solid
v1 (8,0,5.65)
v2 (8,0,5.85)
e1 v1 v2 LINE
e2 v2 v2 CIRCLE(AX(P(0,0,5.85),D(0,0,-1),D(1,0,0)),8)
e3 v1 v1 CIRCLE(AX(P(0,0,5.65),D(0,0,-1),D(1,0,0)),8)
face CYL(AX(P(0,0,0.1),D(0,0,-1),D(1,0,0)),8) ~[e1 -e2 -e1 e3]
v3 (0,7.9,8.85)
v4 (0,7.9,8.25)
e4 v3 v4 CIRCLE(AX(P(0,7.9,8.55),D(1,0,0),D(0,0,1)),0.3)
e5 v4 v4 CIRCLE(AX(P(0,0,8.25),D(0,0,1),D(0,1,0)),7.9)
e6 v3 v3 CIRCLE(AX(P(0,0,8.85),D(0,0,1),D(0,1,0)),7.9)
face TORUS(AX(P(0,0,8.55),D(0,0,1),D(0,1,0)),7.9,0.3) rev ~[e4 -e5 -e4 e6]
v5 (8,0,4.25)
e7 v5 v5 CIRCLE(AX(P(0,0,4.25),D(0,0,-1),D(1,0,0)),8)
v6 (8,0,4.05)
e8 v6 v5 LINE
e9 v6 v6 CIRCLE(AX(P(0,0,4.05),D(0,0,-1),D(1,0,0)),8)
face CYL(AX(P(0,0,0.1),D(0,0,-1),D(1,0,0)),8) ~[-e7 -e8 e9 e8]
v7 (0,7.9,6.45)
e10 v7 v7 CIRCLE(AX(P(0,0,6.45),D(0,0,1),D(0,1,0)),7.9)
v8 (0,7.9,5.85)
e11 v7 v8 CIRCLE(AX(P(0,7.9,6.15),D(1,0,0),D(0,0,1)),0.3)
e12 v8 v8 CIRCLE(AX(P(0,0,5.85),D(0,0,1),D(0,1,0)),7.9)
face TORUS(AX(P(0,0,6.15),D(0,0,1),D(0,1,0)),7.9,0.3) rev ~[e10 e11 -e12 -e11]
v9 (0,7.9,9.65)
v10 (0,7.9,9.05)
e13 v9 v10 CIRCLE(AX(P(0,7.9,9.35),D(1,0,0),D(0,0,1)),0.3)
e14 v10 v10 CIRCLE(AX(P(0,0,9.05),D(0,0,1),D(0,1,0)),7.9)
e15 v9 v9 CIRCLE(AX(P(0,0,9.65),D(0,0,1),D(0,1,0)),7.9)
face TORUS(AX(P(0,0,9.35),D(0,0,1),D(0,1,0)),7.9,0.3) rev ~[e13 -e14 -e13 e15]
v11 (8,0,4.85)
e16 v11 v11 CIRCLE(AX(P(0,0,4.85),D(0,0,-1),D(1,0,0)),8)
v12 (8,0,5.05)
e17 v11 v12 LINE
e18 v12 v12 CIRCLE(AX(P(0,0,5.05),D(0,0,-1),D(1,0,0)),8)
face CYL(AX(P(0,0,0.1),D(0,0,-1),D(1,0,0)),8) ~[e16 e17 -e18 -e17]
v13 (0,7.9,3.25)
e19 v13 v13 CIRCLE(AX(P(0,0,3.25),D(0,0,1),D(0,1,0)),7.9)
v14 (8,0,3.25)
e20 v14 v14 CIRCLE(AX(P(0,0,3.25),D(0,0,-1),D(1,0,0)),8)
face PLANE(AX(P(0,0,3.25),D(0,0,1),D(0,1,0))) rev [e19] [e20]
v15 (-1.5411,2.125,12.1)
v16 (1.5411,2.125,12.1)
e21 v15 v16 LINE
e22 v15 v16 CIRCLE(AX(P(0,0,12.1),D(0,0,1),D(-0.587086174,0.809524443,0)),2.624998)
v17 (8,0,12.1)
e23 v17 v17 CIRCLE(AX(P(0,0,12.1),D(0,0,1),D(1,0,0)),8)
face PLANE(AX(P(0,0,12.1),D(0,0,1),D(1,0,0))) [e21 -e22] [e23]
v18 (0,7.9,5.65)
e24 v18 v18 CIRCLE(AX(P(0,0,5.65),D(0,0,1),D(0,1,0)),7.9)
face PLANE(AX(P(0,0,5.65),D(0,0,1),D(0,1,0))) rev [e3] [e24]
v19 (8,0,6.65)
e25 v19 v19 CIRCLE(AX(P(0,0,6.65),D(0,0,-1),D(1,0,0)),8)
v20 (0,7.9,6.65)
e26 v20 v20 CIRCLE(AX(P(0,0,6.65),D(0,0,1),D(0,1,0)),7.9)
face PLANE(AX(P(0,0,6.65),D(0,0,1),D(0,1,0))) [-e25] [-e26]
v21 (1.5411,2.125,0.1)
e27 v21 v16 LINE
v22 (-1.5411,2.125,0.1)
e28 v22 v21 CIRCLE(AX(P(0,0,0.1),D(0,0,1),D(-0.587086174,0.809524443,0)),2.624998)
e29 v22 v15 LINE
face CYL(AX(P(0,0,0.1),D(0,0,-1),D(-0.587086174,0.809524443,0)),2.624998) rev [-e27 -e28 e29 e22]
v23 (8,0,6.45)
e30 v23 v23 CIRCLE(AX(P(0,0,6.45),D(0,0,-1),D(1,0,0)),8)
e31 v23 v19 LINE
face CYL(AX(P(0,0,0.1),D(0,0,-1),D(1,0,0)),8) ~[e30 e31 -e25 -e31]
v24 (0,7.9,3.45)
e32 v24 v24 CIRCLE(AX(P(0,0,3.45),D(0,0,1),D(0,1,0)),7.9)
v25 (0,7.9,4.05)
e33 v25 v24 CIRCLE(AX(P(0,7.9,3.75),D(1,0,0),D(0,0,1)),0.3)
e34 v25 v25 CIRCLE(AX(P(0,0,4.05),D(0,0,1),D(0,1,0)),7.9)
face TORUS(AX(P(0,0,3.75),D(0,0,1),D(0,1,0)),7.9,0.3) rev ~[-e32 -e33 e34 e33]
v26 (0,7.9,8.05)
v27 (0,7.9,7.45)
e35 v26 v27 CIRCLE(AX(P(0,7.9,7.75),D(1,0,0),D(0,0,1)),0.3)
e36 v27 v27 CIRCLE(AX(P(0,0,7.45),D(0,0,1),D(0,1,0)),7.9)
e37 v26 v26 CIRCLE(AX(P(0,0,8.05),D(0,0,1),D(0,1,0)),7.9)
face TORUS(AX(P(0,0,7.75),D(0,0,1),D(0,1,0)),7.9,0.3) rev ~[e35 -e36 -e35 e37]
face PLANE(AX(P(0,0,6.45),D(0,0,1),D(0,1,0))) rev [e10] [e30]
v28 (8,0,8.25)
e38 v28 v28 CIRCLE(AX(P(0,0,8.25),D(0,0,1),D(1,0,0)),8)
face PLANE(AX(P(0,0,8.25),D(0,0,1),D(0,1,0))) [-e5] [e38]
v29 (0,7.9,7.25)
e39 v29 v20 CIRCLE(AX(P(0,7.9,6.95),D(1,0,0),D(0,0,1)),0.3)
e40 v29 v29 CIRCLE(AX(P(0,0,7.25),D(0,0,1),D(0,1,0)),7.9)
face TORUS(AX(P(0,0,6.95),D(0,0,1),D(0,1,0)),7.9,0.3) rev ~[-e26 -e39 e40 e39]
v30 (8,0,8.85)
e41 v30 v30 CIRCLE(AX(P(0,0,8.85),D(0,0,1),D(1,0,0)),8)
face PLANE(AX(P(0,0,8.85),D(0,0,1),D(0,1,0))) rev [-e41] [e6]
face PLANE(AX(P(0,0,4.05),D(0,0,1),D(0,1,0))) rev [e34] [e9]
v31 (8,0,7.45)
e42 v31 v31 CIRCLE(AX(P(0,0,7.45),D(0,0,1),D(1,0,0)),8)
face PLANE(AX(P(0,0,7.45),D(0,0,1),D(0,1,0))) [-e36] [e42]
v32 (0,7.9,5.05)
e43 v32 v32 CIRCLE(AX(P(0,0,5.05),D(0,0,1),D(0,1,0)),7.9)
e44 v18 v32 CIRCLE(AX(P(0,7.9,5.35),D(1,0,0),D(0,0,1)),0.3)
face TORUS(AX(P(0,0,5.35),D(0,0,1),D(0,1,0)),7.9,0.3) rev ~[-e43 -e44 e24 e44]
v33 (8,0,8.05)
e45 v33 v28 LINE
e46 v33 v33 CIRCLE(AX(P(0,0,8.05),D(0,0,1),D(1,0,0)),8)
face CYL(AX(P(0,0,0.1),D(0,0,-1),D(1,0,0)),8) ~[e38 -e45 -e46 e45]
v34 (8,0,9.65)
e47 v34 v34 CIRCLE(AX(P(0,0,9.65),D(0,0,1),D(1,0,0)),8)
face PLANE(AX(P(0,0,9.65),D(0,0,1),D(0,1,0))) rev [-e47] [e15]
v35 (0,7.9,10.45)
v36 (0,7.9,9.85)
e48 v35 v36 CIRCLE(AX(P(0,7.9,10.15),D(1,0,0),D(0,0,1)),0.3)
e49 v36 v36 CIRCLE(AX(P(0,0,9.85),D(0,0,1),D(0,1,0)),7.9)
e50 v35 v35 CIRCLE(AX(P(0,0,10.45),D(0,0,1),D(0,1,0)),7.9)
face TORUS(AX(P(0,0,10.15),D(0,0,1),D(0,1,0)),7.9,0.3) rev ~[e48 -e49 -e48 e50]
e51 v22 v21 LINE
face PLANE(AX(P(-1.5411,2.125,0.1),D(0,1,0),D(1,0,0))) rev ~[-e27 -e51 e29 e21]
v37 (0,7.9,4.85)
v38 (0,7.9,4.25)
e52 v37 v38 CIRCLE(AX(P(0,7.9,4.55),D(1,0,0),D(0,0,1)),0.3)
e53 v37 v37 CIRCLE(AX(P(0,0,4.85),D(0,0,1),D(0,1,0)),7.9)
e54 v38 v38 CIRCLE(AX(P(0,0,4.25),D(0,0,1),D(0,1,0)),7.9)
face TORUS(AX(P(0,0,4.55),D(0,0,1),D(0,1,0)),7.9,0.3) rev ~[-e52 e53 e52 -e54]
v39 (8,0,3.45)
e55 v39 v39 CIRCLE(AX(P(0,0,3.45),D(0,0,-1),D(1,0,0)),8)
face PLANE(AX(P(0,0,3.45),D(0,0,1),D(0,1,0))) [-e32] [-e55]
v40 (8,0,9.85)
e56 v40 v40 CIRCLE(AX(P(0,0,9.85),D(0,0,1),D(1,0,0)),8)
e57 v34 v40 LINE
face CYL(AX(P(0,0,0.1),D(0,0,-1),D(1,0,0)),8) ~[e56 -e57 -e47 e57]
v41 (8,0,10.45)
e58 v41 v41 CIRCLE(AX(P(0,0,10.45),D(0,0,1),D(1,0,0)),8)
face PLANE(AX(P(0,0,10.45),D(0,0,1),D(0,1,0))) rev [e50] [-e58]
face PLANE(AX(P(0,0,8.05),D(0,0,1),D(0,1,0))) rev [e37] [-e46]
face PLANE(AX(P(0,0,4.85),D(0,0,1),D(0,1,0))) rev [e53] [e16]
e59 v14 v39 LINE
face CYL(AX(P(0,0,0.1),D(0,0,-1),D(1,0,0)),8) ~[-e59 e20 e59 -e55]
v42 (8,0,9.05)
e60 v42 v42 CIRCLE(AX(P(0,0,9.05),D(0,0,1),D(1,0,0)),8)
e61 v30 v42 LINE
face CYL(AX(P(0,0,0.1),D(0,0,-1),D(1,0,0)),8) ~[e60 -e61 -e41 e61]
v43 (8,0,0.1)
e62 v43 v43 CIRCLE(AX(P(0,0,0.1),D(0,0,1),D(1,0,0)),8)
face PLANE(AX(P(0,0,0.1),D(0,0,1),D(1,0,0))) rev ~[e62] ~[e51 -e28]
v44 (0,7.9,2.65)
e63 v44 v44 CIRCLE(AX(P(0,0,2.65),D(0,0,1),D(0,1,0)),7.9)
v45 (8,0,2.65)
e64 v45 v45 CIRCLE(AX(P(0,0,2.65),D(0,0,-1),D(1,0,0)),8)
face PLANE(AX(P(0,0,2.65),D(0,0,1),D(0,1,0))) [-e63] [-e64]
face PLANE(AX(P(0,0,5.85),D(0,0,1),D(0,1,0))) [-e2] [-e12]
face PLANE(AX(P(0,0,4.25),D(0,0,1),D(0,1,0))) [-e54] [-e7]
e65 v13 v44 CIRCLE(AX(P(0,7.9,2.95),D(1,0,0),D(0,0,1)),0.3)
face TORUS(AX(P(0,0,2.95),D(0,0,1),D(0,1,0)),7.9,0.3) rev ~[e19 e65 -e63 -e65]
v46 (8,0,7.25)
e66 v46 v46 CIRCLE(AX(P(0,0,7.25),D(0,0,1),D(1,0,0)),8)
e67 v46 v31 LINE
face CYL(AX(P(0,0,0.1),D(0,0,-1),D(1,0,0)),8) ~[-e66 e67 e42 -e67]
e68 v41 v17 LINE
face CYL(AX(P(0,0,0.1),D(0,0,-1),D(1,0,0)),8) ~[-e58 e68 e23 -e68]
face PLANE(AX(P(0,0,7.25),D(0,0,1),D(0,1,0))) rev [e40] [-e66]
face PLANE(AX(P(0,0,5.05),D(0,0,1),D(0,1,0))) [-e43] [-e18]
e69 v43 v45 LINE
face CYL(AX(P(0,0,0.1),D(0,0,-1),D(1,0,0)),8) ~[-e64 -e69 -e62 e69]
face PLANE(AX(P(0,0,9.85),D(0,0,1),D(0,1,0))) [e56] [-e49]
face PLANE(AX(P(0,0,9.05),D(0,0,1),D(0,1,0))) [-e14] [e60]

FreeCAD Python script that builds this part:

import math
import FreeCAD as App
import Part
import Sketcher
from FreeCAD import Vector

doc = App.newDocument("Part")
body = doc.addObject("PartDesign::Body", "Body")

sketch1 = body.newObject("Sketcher::SketchObject", "Sketch")
sketch1.AttachmentSupport = (doc.getObject("XY_Plane"), [""])
sketch1.MapMode = "FlatFace"
sketch1.AttachmentOffset = App.Placement(Vector(0, 0, 0.1), App.Rotation())
sketch1.addGeometry(Part.Circle(Vector(0, 0, 0), Vector(0, 0, 1), 8), False)
sketch1.addGeometry(Part.ArcOfCircle(Part.Circle(Vector(0, 0, 0), Vector(0, 0, 1), 2.624998), math.radians(125.950506), math.radians(414.049494)), False)
sketch1.addGeometry(Part.LineSegment(Vector(-1.5411, 2.125, 0), Vector(1.5411, 2.125, 0)), False)
sketch1.addConstraint(Sketcher.Constraint("Coincident", 1, 1, 2, 1))
sketch1.addConstraint(Sketcher.Constraint("Coincident", 2, 2, 1, 2))
sketch1.addConstraint(Sketcher.Constraint("Horizontal", 2))
sketch1.addConstraint(Sketcher.Constraint("Coincident", 0, 3, -1, 1))
sketch1.addConstraint(Sketcher.Constraint("Coincident", 1, 3, -1, 1))
sketch1.addConstraint(Sketcher.Constraint("Diameter", 0, 16.0))
sketch1.addConstraint(Sketcher.Constraint("Radius", 1, 2.625))
sketch1.addConstraint(Sketcher.Constraint("DistanceX", 2, 1, 2, 2, 3.0822))
pad1 = body.newObject("PartDesign::Pad", "Pad")
pad1.Profile = sketch1
pad1.Length = 12

sketch2 = body.newObject("Sketcher::SketchObject", "Sketch001")
sketch2.AttachmentSupport = (doc.getObject("YZ_Plane"), [""])
sketch2.MapMode = "FlatFace"
sketch2.addGeometry(Part.LineSegment(Vector(7.9, 2.65, 0), Vector(8, 2.65, 0)), False)
sketch2.addGeometry(Part.LineSegment(Vector(8, 2.65, 0), Vector(8, 3.25, 0)), False)
sketch2.addGeometry(Part.LineSegment(Vector(8, 3.25, 0), Vector(7.9, 3.25, 0)), False)
sketch2.addGeometry(Part.ArcOfCircle(Part.Circle(Vector(7.9, 2.95, 0), Vector(0, 0, 1), 0.3), math.radians(90), math.radians(270)), False)
sketch2.addGeometry(Part.LineSegment(Vector(7.9, 9.85, 0), Vector(8, 9.85, 0)), False)
sketch2.addGeometry(Part.LineSegment(Vector(8, 9.85, 0), Vector(8, 10.45, 0)), False)
sketch2.addGeometry(Part.LineSegment(Vector(8, 10.45, 0), Vector(7.9, 10.45, 0)), False)
sketch2.addGeometry(Part.ArcOfCircle(Part.Circle(Vector(7.9, 10.15, 0), Vector(0, 0, 1), 0.3), math.radians(90), math.radians(270)), False)
sketch2.addGeometry(Part.LineSegment(Vector(7.9, 9.05, 0), Vector(8, 9.05, 0)), False)
sketch2.addGeometry(Part.LineSegment(Vector(8, 9.05, 0), Vector(8, 9.65, 0)), False)
sketch2.addGeometry(Part.LineSegment(Vector(8, 9.65, 0), Vector(7.9, 9.65, 0)), False)
sketch2.addGeometry(Part.ArcOfCircle(Part.Circle(Vector(7.9, 9.35, 0), Vector(0, 0, 1), 0.3), math.radians(90), math.radians(270)), False)
sketch2.addGeometry(Part.LineSegment(Vector(7.9, 8.25, 0), Vector(8, 8.25, 0)), False)
sketch2.addGeometry(Part.LineSegment(Vector(8, 8.25, 0), Vector(8, 8.85, 0)), False)
sketch2.addGeometry(Part.LineSegment(Vector(8, 8.85, 0), Vector(7.9, 8.85, 0)), False)
sketch2.addGeometry(Part.ArcOfCircle(Part.Circle(Vector(7.9, 8.55, 0), Vector(0, 0, 1), 0.3), math.radians(90), math.radians(270)), False)
sketch2.addGeometry(Part.LineSegment(Vector(7.9, 7.45, 0), Vector(8, 7.45, 0)), False)
sketch2.addGeometry(Part.LineSegment(Vector(8, 7.45, 0), Vector(8, 8.05, 0)), False)
sketch2.addGeometry(Part.LineSegment(Vector(8, 8.05, 0), Vector(7.9, 8.05, 0)), False)
sketch2.addGeometry(Part.ArcOfCircle(Part.Circle(Vector(7.9, 7.75, 0), Vector(0, 0, 1), 0.3), math.radians(90), math.radians(270)), False)
sketch2.addGeometry(Part.LineSegment(Vector(7.9, 6.65, 0), Vector(8, 6.65, 0)), False)
sketch2.addGeometry(Part.LineSegment(Vector(8, 6.65, 0), Vector(8, 7.25, 0)), False)
sketch2.addGeometry(Part.LineSegment(Vector(8, 7.25, 0), Vector(7.9, 7.25, 0)), False)
sketch2.addGeometry(Part.ArcOfCircle(Part.Circle(Vector(7.9, 6.95, 0), Vector(0, 0, 1), 0.3), math.radians(90), math.radians(270)), False)
sketch2.addGeometry(Part.LineSegment(Vector(7.9, 5.85, 0), Vector(8, 5.85, 0)), False)
sketch2.addGeometry(Part.LineSegment(Vector(8, 5.85, 0), Vector(8, 6.45, 0)), False)
sketch2.addGeometry(Part.LineSegment(Vector(8, 6.45, 0), Vector(7.9, 6.45, 0)), False)
sketch2.addGeometry(Part.ArcOfCircle(Part.Circle(Vector(7.9, 6.15, 0), Vector(0, 0, 1), 0.3), math.radians(90), math.radians(270)), False)
sketch2.addGeometry(Part.LineSegment(Vector(7.9, 5.05, 0), Vector(8, 5.05, 0)), False)
sketch2.addGeometry(Part.LineSegment(Vector(8, 5.05, 0), Vector(8, 5.65, 0)), False)
sketch2.addGeometry(Part.LineSegment(Vector(8, 5.65, 0), Vector(7.9, 5.65, 0)), False)
sketch2.addGeometry(Part.ArcOfCircle(Part.Circle(Vector(7.9, 5.35, 0), Vector(0, 0, 1), 0.3), math.radians(90), math.radians(270)), False)
sketch2.addGeometry(Part.LineSegment(Vector(7.9, 4.25, 0), Vector(8, 4.25, 0)), False)
sketch2.addGeometry(Part.LineSegment(Vector(8, 4.25, 0), Vector(8, 4.85, 0)), False)
sketch2.addGeometry(Part.LineSegment(Vector(8, 4.85, 0), Vector(7.9, 4.85, 0)), False)
sketch2.addGeometry(Part.ArcOfCircle(Part.Circle(Vector(7.9, 4.55, 0), Vector(0, 0, 1), 0.3), math.radians(90), math.radians(270)), False)
sketch2.addGeometry(Part.LineSegment(Vector(7.9, 3.45, 0), Vector(8, 3.45, 0)), False)
sketch2.addGeometry(Part.LineSegment(Vector(8, 3.45, 0), Vector(8, 4.05, 0)), False)
sketch2.addGeometry(Part.LineSegment(Vector(8, 4.05, 0), Vector(7.9, 4.05, 0)), False)
sketch2.addGeometry(Part.ArcOfCircle(Part.Circle(Vector(7.9, 3.75, 0), Vector(0, 0, 1), 0.3), math.radians(90), math.radians(270)), False)
sketch2.addConstraint(Sketcher.Constraint("Coincident", 0, 2, 1, 1))
sketch2.addConstraint(Sketcher.Constraint("Coincident", 1, 2, 2, 1))
sketch2.addConstraint(Sketcher.Constraint("Tangent", 2, 2, 3, 1))
sketch2.addConstraint(Sketcher.Constraint("Tangent", 3, 2, 0, 1))
sketch2.addConstraint(Sketcher.Constraint("Coincident", 4, 2, 5, 1))
sketch2.addConstraint(Sketcher.Constraint("Coincident", 5, 2, 6, 1))
sketch2.addConstraint(Sketcher.Constraint("Tangent", 6, 2, 7, 1))
sketch2.addConstraint(Sketcher.Constraint("Tangent", 7, 2, 4, 1))
sketch2.addConstraint(Sketcher.Constraint("Coincident", 8, 2, 9, 1))
sketch2.addConstraint(Sketcher.Constraint("Coincident", 9, 2, 10, 1))
sketch2.addConstraint(Sketcher.Constraint("Tangent", 10, 2, 11, 1))
sketch2.addConstraint(Sketcher.Constraint("Tangent", 11, 2, 8, 1))
sketch2.addConstraint(Sketcher.Constraint("Coincident", 12, 2, 13, 1))
sketch2.addConstraint(Sketcher.Constraint("Coincident", 13, 2, 14, 1))
sketch2.addConstraint(Sketcher.Constraint("Tangent", 14, 2, 15, 1))
sketch2.addConstraint(Sketcher.Constraint("Tangent", 15, 2, 12, 1))
sketch2.addConstraint(Sketcher.Constraint("Coincident", 16, 2, 17, 1))
sketch2.addConstraint(Sketcher.Constraint("Coincident", 17, 2, 18, 1))
sketch2.addConstraint(Sketcher.Constraint("Tangent", 18, 2, 19, 1))
sketch2.addConstraint(Sketcher.Constraint("Tangent", 19, 2, 16, 1))
sketch2.addConstraint(Sketcher.Constraint("Coincident", 20, 2, 21, 1))
sketch2.addConstraint(Sketcher.Constraint("Coincident", 21, 2, 22, 1))
sketch2.addConstraint(Sketcher.Constraint("Tangent", 22, 2, 23, 1))
sketch2.addConstraint(Sketcher.Constraint("Tangent", 23, 2, 20, 1))
sketch2.addConstraint(Sketcher.Constraint("Coincident", 24, 2, 25, 1))
sketch2.addConstraint(Sketcher.Constraint("Coincident", 25, 2, 26, 1))
sketch2.addConstraint(Sketcher.Constraint("Tangent", 26, 2, 27, 1))
sketch2.addConstraint(Sketcher.Constraint("Tangent", 27, 2, 24, 1))
sketch2.addConstraint(Sketcher.Constraint("Coincident", 28, 2, 29, 1))
sketch2.addConstraint(Sketcher.Constraint("Coincident", 29, 2, 30, 1))
sketch2.addConstraint(Sketcher.Constraint("Tangent", 30, 2, 31, 1))
sketch2.addConstraint(Sketcher.Constraint("Tangent", 31, 2, 28, 1))
sketch2.addConstraint(Sketcher.Constraint("Coincident", 32, 2, 33, 1))
sketch2.addConstraint(Sketcher.Constraint("Coincident", 33, 2, 34, 1))
sketch2.addConstraint(Sketcher.Constraint("Tangent", 34, 2, 35, 1))
sketch2.addConstraint(Sketcher.Constraint("Tangent", 35, 2, 32, 1))
sketch2.addConstraint(Sketcher.Constraint("Coincident", 36, 2, 37, 1))
sketch2.addConstraint(Sketcher.Constraint("Coincident", 37, 2, 38, 1))
sketch2.addConstraint(Sketcher.Constraint("Tangent", 38, 2, 39, 1))
sketch2.addConstraint(Sketcher.Constraint("Tangent", 39, 2, 36, 1))
sketch2.addConstraint(Sketcher.Constraint("Horizontal", 0))
sketch2.addConstraint(Sketcher.Constraint("Vertical", 1))
sketch2.addConstraint(Sketcher.Constraint("Horizontal", 2))
sketch2.addConstraint(Sketcher.Constraint("Horizontal", 4))
sketch2.addConstraint(Sketcher.Constraint("Vertical", 5))
sketch2.addConstraint(Sketcher.Constraint("Horizontal", 6))
sketch2.addConstraint(Sketcher.Constraint("Horizontal", 8))
sketch2.addConstraint(Sketcher.Constraint("Vertical", 9))
sketch2.addConstraint(Sketcher.Constraint("Horizontal", 10))
sketch2.addConstraint(Sketcher.Constraint("Horizontal", 12))
sketch2.addConstraint(Sketcher.Constraint("Vertical", 13))
sketch2.addConstraint(Sketcher.Constraint("Horizontal", 14))
sketch2.addConstraint(Sketcher.Constraint("Horizontal", 16))
sketch2.addConstraint(Sketcher.Constraint("Vertical", 17))
sketch2.addConstraint(Sketcher.Constraint("Horizontal", 18))
sketch2.addConstraint(Sketcher.Constraint("Horizontal", 20))
sketch2.addConstraint(Sketcher.Constraint("Vertical", 21))
sketch2.addConstraint(Sketcher.Constraint("Horizontal", 22))
sketch2.addConstraint(Sketcher.Constraint("Horizontal", 24))
sketch2.addConstraint(Sketcher.Constraint("Vertical", 25))
sketch2.addConstraint(Sketcher.Constraint("Horizontal", 26))
sketch2.addConstraint(Sketcher.Constraint("Horizontal", 28))
sketch2.addConstraint(Sketcher.Constraint("Vertical", 29))
sketch2.addConstraint(Sketcher.Constraint("Horizontal", 30))
sketch2.addConstraint(Sketcher.Constraint("Horizontal", 32))
sketch2.addConstraint(Sketcher.Constraint("Vertical", 33))
sketch2.addConstraint(Sketcher.Constraint("Horizontal", 34))
sketch2.addConstraint(Sketcher.Constraint("Horizontal", 36))
sketch2.addConstraint(Sketcher.Constraint("Vertical", 37))
sketch2.addConstraint(Sketcher.Constraint("Horizontal", 38))
sketch2.addConstraint(Sketcher.Constraint("Equal", 3, 7))
sketch2.addConstraint(Sketcher.Constraint("Equal", 7, 11))
sketch2.addConstraint(Sketcher.Constraint("Equal", 11, 15))
sketch2.addConstraint(Sketcher.Constraint("Equal", 15, 19))
sketch2.addConstraint(Sketcher.Constraint("Equal", 19, 23))
sketch2.addConstraint(Sketcher.Constraint("Equal", 23, 27))
sketch2.addConstraint(Sketcher.Constraint("Equal", 27, 31))
sketch2.addConstraint(Sketcher.Constraint("Equal", 31, 35))
sketch2.addConstraint(Sketcher.Constraint("Equal", 35, 39))
sketch2.addConstraint(Sketcher.Constraint("Vertical", 3, 3, 7, 3))
sketch2.addConstraint(Sketcher.Constraint("Vertical", 7, 3, 11, 3))
sketch2.addConstraint(Sketcher.Constraint("Vertical", 11, 3, 15, 3))
sketch2.addConstraint(Sketcher.Constraint("Vertical", 15, 3, 19, 3))
sketch2.addConstraint(Sketcher.Constraint("Vertical", 19, 3, 23, 3))
sketch2.addConstraint(Sketcher.Constraint("Vertical", 23, 3, 27, 3))
sketch2.addConstraint(Sketcher.Constraint("Vertical", 27, 3, 31, 3))
sketch2.addConstraint(Sketcher.Constraint("Vertical", 31, 3, 35, 3))
sketch2.addConstraint(Sketcher.Constraint("Vertical", 35, 3, 39, 3))
sketch2.addConstraint(Sketcher.Constraint("Vertical", 1, 2, 4, 2))
sketch2.addConstraint(Sketcher.Constraint("Vertical", 5, 2, 8, 2))
sketch2.addConstraint(Sketcher.Constraint("Vertical", 9, 2, 12, 2))
sketch2.addConstraint(Sketcher.Constraint("Vertical", 13, 2, 16, 2))
sketch2.addConstraint(Sketcher.Constraint("Vertical", 17, 2, 20, 2))
sketch2.addConstraint(Sketcher.Constraint("Vertical", 21, 2, 24, 2))
sketch2.addConstraint(Sketcher.Constraint("Vertical", 25, 2, 28, 2))
sketch2.addConstraint(Sketcher.Constraint("Vertical", 29, 2, 32, 2))
sketch2.addConstraint(Sketcher.Constraint("Vertical", 33, 2, 36, 2))
sketch2.addConstraint(Sketcher.Constraint("Radius", 3, 0.3))
sketch2.addConstraint(Sketcher.Constraint("DistanceX", 0, 1, 0, 2, 0.1))
sketch2.addConstraint(Sketcher.Constraint("DistanceY", 11, 3, 7, 3, 0.8))
sketch2.addConstraint(Sketcher.Constraint("DistanceY", 15, 3, 11, 3, 0.8))
sketch2.addConstraint(Sketcher.Constraint("DistanceY", 19, 3, 15, 3, 0.8))
sketch2.addConstraint(Sketcher.Constraint("DistanceY", 23, 3, 19, 3, 0.8))
sketch2.addConstraint(Sketcher.Constraint("DistanceY", 27, 3, 23, 3, 0.8))
sketch2.addConstraint(Sketcher.Constraint("DistanceY", 31, 3, 27, 3, 0.8))
sketch2.addConstraint(Sketcher.Constraint("DistanceY", 35, 3, 31, 3, 0.8))
sketch2.addConstraint(Sketcher.Constraint("DistanceY", 3, 3, 39, 3, 0.8))
sketch2.addConstraint(Sketcher.Constraint("DistanceY", 39, 3, 35, 3, 0.8))
sketch2.addConstraint(Sketcher.Constraint("DistanceX", -1, 1, 0, 2, 8.0))
sketch2.addConstraint(Sketcher.Constraint("DistanceY", -1, 1, 3, 3, 2.95))
groove = body.newObject("PartDesign::Groove", "Groove")
groove.Profile = sketch2
groove.ReferenceAxis = (sketch2, ["V_Axis"])
groove.Angle = 360

doc.recompute()
